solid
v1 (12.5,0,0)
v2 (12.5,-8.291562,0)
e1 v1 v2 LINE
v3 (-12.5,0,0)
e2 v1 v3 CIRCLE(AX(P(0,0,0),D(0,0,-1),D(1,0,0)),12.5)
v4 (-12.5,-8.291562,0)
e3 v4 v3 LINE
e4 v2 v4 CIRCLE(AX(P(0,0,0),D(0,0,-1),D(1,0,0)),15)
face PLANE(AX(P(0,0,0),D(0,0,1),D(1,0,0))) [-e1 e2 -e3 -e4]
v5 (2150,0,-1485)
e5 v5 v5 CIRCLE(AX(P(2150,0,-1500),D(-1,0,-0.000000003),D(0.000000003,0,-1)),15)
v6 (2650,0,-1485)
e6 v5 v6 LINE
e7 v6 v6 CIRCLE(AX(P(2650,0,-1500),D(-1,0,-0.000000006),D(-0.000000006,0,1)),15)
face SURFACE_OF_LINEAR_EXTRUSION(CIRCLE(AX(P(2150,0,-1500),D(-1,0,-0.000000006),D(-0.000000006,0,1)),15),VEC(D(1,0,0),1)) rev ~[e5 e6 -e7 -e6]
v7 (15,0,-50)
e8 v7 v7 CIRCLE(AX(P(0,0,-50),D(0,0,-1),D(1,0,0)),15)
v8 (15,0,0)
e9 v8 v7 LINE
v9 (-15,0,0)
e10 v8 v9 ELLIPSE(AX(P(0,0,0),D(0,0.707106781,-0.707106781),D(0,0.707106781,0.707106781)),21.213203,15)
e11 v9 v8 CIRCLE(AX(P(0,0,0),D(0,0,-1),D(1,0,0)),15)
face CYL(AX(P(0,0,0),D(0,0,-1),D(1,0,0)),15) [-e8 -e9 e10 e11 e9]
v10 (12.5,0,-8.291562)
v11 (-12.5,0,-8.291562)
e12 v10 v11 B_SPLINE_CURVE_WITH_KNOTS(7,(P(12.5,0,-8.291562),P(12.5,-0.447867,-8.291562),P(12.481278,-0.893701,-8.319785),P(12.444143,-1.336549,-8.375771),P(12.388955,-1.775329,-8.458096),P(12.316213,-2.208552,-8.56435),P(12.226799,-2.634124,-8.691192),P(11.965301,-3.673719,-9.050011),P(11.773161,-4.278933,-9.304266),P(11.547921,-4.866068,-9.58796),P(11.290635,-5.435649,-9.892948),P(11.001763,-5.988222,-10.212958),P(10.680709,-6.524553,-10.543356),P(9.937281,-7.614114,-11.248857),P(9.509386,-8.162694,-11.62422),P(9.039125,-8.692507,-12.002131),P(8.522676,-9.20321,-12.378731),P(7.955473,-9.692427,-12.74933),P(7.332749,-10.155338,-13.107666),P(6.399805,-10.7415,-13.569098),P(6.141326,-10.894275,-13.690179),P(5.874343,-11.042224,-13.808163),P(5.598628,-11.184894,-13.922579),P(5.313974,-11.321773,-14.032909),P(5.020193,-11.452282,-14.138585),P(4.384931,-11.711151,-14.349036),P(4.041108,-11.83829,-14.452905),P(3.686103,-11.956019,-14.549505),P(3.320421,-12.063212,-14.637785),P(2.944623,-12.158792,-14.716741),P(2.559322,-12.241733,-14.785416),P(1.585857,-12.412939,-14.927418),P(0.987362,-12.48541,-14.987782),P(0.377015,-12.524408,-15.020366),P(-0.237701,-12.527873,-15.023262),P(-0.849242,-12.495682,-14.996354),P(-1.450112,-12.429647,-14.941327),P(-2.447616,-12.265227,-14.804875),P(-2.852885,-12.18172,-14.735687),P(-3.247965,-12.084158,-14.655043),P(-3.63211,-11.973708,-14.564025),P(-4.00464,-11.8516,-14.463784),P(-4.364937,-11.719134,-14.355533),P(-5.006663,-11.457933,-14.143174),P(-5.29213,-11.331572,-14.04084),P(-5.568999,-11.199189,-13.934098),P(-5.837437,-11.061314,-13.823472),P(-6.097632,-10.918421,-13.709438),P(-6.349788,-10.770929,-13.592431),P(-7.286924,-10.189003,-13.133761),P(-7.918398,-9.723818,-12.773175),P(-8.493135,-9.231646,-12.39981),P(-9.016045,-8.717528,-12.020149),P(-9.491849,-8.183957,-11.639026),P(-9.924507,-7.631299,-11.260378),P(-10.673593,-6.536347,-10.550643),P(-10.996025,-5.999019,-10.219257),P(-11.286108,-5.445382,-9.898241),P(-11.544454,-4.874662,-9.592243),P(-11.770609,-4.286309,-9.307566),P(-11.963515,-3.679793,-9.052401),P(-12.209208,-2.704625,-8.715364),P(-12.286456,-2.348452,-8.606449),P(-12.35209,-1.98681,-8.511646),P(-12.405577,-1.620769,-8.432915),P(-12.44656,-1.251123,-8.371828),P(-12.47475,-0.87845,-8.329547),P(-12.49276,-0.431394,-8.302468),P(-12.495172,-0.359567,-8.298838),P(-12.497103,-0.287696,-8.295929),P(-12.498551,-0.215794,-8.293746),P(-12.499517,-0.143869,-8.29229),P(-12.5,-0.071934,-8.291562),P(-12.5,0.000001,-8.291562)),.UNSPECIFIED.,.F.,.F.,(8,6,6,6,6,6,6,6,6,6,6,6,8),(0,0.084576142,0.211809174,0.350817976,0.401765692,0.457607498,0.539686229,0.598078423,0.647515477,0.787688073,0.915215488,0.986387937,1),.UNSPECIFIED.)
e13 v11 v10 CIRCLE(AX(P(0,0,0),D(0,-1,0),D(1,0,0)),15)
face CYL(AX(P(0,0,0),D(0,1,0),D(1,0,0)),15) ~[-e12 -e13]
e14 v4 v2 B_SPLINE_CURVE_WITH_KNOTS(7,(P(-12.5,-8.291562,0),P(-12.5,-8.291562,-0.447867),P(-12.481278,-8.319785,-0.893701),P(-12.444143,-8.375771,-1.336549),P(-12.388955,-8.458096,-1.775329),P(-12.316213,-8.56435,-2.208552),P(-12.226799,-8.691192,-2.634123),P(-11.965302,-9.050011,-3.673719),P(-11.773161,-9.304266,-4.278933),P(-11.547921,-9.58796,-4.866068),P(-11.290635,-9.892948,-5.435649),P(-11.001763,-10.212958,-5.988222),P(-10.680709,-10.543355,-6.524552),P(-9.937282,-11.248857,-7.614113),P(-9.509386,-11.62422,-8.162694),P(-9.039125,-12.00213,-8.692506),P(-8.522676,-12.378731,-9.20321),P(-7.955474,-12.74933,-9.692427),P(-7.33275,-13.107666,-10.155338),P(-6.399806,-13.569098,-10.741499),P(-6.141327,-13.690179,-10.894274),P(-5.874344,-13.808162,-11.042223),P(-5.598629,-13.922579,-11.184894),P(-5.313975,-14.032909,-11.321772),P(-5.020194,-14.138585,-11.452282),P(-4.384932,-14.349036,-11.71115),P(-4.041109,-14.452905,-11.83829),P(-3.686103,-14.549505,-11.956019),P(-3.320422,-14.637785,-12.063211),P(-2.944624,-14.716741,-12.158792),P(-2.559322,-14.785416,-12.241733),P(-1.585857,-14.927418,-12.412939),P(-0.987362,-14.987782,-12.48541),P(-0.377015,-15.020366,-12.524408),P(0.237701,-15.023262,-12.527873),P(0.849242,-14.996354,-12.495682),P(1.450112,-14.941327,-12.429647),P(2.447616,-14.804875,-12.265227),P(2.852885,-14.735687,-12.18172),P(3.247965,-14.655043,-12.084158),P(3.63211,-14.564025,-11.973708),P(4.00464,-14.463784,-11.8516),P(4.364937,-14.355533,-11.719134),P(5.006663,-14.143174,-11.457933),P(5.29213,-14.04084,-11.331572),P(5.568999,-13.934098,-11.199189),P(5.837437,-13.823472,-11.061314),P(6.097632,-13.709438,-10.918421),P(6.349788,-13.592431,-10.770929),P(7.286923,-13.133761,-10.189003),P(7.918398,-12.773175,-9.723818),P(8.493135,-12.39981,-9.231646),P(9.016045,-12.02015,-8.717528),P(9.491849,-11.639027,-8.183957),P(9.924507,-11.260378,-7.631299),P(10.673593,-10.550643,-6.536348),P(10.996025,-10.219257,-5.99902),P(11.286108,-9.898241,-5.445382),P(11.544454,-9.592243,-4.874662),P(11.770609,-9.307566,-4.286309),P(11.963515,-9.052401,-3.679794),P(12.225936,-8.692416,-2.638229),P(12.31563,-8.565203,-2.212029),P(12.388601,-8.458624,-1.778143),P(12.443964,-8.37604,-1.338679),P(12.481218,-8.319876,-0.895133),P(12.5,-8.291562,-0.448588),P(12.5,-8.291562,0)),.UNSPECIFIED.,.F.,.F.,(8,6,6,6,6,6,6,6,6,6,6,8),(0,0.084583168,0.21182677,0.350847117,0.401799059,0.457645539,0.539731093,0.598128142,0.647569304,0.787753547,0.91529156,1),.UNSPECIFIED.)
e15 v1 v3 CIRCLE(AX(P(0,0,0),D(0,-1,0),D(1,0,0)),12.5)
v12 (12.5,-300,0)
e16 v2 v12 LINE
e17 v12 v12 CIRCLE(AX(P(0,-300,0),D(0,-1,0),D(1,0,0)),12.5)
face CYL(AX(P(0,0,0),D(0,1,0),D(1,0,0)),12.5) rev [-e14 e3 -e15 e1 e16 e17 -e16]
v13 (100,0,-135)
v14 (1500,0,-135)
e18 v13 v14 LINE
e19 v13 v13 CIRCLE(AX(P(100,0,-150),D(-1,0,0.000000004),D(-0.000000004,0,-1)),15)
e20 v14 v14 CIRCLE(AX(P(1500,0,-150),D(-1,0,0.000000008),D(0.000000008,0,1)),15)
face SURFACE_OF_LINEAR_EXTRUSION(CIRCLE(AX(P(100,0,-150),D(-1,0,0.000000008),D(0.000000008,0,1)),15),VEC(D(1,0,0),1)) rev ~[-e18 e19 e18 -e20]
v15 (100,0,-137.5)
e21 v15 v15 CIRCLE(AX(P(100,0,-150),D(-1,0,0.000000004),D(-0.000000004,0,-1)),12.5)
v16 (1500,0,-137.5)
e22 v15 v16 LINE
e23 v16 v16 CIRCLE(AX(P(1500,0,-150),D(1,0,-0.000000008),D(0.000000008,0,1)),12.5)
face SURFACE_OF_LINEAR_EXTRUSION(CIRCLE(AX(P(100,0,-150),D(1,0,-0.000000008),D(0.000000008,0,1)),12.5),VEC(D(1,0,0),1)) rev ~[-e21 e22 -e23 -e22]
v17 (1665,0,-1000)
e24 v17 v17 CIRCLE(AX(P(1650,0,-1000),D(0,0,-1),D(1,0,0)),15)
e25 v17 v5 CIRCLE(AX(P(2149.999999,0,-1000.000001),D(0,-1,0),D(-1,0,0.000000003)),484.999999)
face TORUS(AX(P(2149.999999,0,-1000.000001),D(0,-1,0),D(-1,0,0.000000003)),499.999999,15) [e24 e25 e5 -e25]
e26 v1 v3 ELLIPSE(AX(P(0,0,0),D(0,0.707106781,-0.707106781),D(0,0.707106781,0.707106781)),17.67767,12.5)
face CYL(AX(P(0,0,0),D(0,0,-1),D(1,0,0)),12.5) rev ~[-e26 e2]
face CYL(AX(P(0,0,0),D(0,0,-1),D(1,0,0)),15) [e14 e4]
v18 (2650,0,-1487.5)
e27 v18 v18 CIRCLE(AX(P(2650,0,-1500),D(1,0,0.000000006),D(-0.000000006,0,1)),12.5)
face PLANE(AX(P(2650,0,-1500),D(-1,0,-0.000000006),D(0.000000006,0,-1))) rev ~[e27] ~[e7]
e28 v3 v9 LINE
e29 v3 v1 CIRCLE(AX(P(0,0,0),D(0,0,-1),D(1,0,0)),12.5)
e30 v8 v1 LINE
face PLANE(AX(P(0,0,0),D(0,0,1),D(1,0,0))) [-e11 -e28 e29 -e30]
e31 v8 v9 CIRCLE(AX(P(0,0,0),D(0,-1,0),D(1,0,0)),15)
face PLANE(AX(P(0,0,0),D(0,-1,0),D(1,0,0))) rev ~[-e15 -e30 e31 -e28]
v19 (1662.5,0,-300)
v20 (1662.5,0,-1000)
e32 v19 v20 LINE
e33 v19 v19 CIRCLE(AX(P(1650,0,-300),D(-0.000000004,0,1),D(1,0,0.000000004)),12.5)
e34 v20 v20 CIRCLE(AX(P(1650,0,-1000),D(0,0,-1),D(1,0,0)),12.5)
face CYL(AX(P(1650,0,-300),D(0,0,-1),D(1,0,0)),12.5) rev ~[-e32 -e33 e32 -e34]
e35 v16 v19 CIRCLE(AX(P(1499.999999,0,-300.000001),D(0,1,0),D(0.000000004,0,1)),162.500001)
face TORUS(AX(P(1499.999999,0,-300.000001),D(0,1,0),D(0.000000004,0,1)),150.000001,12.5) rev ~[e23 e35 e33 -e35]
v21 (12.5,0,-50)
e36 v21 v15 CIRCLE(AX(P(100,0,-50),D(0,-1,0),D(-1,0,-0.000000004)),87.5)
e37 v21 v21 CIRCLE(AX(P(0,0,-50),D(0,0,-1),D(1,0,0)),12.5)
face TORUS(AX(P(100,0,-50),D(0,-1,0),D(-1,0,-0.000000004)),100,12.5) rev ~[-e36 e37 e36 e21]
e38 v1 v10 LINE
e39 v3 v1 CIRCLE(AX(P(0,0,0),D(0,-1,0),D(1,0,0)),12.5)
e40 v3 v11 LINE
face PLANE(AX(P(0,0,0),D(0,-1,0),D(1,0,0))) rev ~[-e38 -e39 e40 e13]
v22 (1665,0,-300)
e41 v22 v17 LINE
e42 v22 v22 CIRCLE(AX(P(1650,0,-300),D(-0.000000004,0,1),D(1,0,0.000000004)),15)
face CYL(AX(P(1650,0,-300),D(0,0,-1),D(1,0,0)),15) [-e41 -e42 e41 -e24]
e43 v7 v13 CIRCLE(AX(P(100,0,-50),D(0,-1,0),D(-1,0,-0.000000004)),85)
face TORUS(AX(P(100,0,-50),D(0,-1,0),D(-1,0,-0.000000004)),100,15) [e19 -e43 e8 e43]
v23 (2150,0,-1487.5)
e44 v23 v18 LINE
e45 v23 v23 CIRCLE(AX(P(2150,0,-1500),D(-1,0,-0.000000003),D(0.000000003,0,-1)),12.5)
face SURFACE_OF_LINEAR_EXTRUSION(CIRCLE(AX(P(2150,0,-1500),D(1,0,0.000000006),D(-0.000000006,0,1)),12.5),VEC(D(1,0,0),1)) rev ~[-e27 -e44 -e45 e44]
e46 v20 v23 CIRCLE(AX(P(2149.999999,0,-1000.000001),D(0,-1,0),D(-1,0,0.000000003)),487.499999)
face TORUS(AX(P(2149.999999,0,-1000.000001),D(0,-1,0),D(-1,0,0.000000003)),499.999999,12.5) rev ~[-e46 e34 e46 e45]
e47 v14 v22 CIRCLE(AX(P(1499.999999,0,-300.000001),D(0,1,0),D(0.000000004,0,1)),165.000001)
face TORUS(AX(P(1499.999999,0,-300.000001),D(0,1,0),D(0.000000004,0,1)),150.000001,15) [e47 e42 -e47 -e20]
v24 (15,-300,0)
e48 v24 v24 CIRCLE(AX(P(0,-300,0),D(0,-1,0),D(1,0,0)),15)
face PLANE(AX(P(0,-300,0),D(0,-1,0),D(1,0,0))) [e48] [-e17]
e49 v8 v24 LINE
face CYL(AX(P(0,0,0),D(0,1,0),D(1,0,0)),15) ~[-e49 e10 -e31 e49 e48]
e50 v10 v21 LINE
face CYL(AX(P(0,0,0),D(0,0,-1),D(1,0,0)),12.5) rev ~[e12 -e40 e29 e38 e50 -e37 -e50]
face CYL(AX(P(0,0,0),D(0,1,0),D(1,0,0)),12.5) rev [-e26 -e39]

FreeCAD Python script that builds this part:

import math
import FreeCAD as App
import Part
import Sketcher

doc = App.newDocument("Part")
body = doc.addObject("PartDesign::Body", "Body")

# Sketch on XZ plane
sketch1 = body.newObject("Sketcher::SketchObject", "Sketch")
sketch1.AttachmentSupport = (doc.getObject("XZ_Plane"), [""])
sketch1.MapMode = "FlatFace"
sketch1.addGeometry([
    Part.Circle(App.Vector(0, 0, 0), App.Vector(0, 0, 1), 15),
    Part.Circle(App.Vector(0, 0, 0), App.Vector(0, 0, 1), 12.5),
], False)
sketch1.addConstraint([
    Sketcher.Constraint("Coincident", 0, 3, -1, 1),
    Sketcher.Constraint("Coincident", 1, 3, -1, 1),
    Sketcher.Constraint("Diameter", 0, 30.0),
    Sketcher.Constraint("Diameter", 1, 25.0),
])
pad1 = body.newObject("PartDesign::Pad", "Pad")
pad1.Profile = sketch1
pad1.Length = 300

# Sketch on XY plane
sketch2 = body.newObject("Sketcher::SketchObject", "Sketch001")
sketch2.AttachmentSupport = (doc.getObject("XY_Plane"), [""])
sketch2.MapMode = "FlatFace"
sketch2.addGeometry([
    Part.Circle(App.Vector(0, 0, 0), App.Vector(0, 0, 1), 15),
    Part.Circle(App.Vector(0, 0, 0), App.Vector(0, 0, 1), 12.5),
], False)
sketch2.addConstraint([
    Sketcher.Constraint("Coincident", 0, 3, -1, 1),
    Sketcher.Constraint("Coincident", 1, 3, -1, 1),
    Sketcher.Constraint("Diameter", 0, 30.0),
    Sketcher.Constraint("Diameter", 1, 25.0),
])

# Sketch on XZ plane
sketch3 = body.newObject("Sketcher::SketchObject", "Sketch002")
sketch3.AttachmentSupport = (doc.getObject("XZ_Plane"), [""])
sketch3.MapMode = "FlatFace"
sketch3.addGeometry([
    Part.LineSegment(App.Vector(0, 0, 0), App.Vector(0, -50, 0)),  # 0
    Part.ArcOfCircle(Part.Circle(App.Vector(100, -50, 0), App.Vector(0, 0, 1), 100), math.radians(-180), math.radians(-90)),  # 1
    Part.LineSegment(App.Vector(100, -150, 0), App.Vector(1500, -150, 0)),  # 2
    Part.ArcOfCircle(Part.Circle(App.Vector(1499.999999, -300.000001, 0), App.Vector(0, 0, 1), 150.000001), math.radians(0), math.radians(90)),  # 3
    Part.LineSegment(App.Vector(1650, -300, 0), App.Vector(1650, -1000, 0)),  # 4
    Part.ArcOfCircle(Part.Circle(App.Vector(2149.999999, -1000.000001, 0), App.Vector(0, 0, 1), 499.999999), math.radians(180), math.radians(270)),  # 5
    Part.LineSegment(App.Vector(2150, -1500, 0), App.Vector(2650, -1500, 0)),  # 6
], False)
sketch3.addConstraint([
    Sketcher.Constraint("Tangent", 0, 2, 1, 1),
    Sketcher.Constraint("Tangent", 1, 2, 2, 1),
    Sketcher.Constraint("Tangent", 2, 2, 3, 2),
    Sketcher.Constraint("Tangent", 3, 1, 4, 1),
    Sketcher.Constraint("Tangent", 4, 2, 5, 1),
    Sketcher.Constraint("Tangent", 5, 2, 6, 1),
    Sketcher.Constraint("Vertical", 0),
    Sketcher.Constraint("Horizontal", 2),
    Sketcher.Constraint("Vertical", 4),
    Sketcher.Constraint("Horizontal", 6),
    Sketcher.Constraint("Coincident", 0, 1, -1, 1),
    Sketcher.Constraint("Radius", 1, 100.0),
    Sketcher.Constraint("Radius", 3, 150.000001),
    Sketcher.Constraint("Radius", 5, 499.999999),
    Sketcher.Constraint("DistanceX", 2, 1, 2, 2, 1400.0),
    Sketcher.Constraint("DistanceX", 6, 1, 6, 2, 500.0),
    Sketcher.Constraint("DistanceY", 0, 2, 0, 1, 50.0),
    Sketcher.Constraint("DistanceY", 4, 2, 4, 1, 700.0),
])
doc.recompute()

additivepipe = body.newObject("PartDesign::AdditivePipe", "AdditivePipe")
additivepipe.Profile = sketch2
additivepipe.Spine = (sketch3, ["Edge1", "Edge2", "Edge3", "Edge4", "Edge5", "Edge6", "Edge7"])

doc.recompute()
